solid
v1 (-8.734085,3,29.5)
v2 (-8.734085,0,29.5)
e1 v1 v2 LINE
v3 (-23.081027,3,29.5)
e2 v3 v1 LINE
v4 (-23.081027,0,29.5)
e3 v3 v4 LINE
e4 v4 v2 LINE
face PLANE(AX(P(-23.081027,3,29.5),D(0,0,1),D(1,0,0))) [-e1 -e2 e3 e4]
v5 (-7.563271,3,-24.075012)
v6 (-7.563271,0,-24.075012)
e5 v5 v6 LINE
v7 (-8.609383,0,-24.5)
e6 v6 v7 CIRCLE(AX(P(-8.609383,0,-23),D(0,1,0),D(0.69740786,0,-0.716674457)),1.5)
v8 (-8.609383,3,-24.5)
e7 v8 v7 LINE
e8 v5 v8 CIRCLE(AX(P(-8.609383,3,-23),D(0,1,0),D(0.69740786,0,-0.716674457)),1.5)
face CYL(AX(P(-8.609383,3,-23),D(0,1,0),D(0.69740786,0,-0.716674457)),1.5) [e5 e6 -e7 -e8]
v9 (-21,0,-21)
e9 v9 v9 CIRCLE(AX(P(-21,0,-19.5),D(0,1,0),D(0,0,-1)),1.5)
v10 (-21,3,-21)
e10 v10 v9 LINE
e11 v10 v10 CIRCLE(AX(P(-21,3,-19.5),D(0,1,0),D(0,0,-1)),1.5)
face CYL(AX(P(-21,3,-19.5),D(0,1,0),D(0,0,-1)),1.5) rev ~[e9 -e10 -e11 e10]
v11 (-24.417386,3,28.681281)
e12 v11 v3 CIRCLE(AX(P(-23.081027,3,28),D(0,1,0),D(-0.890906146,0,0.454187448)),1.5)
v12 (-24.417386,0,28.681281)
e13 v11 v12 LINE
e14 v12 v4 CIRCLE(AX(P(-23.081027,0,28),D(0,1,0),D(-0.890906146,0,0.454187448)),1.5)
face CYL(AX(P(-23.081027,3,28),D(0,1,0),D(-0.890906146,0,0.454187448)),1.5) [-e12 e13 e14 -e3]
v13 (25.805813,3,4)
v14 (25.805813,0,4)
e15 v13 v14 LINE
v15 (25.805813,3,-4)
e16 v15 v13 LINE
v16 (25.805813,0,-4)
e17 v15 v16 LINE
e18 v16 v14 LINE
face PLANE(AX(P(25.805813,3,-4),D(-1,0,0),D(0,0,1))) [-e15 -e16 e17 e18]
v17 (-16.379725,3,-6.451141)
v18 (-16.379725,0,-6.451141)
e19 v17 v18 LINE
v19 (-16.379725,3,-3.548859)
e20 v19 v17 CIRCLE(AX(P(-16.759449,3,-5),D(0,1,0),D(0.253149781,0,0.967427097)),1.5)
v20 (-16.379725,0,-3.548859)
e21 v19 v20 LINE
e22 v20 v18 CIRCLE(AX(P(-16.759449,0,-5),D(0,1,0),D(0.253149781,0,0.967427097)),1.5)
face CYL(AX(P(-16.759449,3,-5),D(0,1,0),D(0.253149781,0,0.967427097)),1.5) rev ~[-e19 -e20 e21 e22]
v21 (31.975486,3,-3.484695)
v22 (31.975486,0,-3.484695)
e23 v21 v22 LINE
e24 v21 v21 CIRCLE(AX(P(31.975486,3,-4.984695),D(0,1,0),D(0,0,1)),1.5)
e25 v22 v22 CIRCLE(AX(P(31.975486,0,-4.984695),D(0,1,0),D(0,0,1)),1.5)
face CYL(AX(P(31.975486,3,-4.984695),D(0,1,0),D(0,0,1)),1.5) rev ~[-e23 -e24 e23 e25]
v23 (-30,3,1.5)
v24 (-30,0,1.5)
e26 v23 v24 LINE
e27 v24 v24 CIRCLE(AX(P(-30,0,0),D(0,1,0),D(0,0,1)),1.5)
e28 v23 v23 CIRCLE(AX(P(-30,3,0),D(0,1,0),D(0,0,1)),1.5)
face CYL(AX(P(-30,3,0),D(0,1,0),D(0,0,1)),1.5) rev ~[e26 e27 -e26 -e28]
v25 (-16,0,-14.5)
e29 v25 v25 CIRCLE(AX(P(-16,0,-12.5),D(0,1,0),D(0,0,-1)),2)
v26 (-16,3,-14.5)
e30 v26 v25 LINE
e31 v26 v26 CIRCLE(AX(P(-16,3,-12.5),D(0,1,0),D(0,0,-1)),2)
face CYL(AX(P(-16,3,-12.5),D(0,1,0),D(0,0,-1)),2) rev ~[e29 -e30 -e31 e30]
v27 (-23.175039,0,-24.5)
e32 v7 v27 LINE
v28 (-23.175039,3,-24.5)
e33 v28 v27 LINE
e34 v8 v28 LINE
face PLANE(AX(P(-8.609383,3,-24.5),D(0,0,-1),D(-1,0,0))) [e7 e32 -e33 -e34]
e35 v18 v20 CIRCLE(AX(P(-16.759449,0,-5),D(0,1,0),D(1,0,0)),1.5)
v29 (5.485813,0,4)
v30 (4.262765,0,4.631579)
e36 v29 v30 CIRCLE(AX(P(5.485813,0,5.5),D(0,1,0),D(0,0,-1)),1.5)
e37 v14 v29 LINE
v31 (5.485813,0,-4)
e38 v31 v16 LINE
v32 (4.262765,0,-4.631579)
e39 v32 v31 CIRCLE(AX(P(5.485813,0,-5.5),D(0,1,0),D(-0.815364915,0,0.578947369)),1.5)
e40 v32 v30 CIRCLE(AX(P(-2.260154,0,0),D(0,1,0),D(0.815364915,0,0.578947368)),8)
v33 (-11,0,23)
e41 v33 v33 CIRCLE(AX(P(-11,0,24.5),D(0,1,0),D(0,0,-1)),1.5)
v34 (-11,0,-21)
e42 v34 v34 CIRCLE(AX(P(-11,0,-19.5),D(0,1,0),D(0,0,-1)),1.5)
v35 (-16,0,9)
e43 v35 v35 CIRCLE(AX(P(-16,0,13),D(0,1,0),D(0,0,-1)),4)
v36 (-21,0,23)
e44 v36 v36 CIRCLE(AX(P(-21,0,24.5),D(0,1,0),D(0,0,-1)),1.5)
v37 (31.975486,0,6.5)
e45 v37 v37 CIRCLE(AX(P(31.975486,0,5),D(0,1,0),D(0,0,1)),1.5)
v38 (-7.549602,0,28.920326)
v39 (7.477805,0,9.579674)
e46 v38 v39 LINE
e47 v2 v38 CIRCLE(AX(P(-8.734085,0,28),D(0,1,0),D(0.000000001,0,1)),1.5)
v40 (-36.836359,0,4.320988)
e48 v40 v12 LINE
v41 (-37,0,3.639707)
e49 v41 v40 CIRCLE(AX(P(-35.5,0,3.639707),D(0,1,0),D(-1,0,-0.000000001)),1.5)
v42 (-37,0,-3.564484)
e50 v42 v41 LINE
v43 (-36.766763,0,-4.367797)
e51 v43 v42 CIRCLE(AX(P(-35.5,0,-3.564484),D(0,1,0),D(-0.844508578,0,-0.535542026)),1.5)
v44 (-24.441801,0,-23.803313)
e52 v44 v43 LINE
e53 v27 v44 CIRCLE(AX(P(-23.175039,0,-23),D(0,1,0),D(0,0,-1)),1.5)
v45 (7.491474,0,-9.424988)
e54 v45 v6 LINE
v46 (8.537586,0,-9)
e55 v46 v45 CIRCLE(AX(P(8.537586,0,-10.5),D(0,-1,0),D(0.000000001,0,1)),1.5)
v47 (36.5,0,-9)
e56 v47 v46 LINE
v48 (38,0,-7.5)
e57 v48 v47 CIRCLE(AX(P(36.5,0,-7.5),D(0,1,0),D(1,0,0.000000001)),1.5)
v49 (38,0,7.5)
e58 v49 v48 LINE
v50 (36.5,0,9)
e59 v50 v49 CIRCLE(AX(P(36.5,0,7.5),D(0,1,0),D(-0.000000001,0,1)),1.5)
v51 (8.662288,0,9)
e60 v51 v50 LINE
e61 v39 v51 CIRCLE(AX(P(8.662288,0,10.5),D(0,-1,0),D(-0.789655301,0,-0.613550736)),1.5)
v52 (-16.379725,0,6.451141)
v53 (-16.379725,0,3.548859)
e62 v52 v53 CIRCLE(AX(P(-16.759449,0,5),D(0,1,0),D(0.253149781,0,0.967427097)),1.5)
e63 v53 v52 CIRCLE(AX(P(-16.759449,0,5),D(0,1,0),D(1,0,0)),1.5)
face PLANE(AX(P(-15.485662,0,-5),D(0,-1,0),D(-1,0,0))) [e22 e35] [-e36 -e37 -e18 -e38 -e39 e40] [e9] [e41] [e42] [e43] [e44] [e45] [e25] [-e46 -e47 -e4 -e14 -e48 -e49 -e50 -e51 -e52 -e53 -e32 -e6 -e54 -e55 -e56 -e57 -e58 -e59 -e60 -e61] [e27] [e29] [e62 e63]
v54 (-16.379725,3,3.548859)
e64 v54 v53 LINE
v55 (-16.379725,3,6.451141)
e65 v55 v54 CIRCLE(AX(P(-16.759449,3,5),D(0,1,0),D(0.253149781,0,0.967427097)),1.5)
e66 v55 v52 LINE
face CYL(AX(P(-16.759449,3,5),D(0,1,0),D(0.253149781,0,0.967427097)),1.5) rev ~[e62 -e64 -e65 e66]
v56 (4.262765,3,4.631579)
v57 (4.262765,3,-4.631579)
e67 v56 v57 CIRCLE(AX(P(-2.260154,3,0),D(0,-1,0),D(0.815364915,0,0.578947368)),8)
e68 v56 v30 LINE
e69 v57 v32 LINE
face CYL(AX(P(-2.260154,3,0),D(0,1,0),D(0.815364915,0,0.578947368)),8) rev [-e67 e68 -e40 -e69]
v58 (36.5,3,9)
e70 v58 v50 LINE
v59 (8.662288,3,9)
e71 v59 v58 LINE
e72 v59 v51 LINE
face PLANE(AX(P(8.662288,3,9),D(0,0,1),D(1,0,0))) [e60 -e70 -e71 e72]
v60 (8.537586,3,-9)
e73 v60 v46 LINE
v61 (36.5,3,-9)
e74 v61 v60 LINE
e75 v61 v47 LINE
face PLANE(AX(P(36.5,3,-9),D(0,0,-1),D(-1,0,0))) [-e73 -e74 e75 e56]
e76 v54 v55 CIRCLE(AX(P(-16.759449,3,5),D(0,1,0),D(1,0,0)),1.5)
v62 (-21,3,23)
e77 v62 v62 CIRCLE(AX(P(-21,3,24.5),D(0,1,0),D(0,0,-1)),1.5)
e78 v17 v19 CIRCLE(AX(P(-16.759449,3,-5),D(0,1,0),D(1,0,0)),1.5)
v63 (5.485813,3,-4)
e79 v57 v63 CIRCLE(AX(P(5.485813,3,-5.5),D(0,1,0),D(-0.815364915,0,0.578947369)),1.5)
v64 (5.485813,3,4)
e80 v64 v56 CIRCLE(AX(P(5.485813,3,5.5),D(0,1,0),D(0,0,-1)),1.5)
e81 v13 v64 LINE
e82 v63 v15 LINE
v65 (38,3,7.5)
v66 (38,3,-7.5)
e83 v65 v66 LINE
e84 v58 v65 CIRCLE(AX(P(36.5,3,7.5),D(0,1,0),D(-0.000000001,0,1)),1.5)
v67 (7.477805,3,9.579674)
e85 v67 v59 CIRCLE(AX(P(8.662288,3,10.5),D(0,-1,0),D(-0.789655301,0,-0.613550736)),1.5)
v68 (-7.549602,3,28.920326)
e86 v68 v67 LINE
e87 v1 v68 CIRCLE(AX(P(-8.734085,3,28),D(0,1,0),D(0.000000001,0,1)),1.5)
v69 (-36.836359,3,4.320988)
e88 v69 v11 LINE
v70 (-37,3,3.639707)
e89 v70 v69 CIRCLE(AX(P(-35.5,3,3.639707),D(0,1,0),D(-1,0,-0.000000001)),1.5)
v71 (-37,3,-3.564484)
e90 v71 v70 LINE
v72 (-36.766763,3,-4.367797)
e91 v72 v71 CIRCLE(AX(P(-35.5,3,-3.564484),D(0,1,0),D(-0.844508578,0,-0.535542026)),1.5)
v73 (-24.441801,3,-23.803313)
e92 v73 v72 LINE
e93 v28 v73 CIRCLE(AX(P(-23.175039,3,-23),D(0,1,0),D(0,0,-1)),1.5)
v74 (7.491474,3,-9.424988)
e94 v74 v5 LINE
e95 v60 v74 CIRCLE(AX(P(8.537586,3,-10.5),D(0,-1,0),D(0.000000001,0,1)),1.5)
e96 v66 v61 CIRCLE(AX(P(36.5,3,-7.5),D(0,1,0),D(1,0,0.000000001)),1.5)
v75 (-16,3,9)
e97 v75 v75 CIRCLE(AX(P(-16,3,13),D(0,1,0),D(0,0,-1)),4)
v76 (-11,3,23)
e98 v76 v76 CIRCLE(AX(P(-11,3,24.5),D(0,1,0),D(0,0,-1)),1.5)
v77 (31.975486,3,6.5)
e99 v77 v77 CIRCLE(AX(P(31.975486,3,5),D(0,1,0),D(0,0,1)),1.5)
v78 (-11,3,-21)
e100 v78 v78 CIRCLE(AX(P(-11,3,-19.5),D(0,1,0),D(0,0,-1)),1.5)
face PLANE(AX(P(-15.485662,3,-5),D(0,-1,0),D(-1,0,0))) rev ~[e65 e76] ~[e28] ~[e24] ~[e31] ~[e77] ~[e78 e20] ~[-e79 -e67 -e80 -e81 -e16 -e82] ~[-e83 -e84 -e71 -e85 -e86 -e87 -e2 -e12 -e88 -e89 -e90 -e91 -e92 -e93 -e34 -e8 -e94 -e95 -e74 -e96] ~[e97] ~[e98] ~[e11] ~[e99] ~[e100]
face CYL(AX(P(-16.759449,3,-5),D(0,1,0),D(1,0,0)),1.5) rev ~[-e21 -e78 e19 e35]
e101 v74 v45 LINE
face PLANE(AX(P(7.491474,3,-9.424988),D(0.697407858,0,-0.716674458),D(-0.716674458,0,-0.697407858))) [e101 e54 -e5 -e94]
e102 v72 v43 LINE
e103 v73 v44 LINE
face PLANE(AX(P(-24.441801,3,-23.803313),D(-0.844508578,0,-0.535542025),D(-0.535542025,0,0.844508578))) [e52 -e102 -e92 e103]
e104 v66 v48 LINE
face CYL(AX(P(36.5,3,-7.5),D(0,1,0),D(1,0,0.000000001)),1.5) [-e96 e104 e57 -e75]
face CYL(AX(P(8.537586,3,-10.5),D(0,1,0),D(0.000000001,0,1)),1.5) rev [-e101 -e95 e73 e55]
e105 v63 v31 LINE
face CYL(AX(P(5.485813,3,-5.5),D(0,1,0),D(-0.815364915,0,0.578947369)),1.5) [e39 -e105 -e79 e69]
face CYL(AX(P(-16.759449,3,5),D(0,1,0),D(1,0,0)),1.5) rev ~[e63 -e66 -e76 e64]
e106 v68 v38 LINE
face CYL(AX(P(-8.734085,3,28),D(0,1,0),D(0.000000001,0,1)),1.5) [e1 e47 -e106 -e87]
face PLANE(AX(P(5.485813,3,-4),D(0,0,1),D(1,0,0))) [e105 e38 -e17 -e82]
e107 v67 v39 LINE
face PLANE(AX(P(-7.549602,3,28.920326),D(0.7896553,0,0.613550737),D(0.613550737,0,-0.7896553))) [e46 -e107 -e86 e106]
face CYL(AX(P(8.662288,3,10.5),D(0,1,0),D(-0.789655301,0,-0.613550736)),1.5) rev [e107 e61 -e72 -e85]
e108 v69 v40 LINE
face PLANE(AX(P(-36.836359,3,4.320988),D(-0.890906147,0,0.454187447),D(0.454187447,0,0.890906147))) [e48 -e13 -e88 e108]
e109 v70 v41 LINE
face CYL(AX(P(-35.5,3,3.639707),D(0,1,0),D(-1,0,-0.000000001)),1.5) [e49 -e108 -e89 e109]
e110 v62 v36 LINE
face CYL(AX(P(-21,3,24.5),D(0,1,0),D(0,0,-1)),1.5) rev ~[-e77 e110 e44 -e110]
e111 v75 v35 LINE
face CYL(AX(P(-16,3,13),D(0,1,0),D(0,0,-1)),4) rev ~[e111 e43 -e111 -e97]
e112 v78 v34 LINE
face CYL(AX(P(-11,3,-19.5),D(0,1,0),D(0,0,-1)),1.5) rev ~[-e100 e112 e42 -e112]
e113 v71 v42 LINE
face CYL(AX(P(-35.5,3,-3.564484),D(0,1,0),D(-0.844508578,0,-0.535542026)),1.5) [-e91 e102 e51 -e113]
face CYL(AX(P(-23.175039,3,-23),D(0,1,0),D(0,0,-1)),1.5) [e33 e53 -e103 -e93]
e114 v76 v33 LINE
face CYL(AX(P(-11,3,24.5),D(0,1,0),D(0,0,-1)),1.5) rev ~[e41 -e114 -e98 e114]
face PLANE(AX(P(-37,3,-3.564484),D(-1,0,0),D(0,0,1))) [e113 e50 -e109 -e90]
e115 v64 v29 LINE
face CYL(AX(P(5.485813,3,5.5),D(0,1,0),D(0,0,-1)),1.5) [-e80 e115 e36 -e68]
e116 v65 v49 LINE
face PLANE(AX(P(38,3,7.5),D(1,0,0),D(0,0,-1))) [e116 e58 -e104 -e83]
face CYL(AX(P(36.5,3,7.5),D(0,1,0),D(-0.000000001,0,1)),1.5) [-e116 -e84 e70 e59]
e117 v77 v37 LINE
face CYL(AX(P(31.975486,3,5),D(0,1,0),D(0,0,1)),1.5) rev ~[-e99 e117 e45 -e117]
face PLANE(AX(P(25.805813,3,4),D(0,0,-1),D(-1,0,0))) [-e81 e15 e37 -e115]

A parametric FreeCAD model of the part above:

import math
import FreeCAD as App
import Part
import Sketcher

V = App.Vector

doc = App.newDocument("Part")
body = doc.addObject("PartDesign::Body", "Body")

# Sketch on XZ plane
sketch1 = body.newObject("Sketcher::SketchObject", "Sketch")
sketch1.AttachmentSupport = (doc.getObject("XZ_Plane"), [""])
sketch1.MapMode = "FlatFace"
sketch1.AttachmentOffset = App.Placement(V(0, 0, -3), App.Rotation())
sketch1.addGeometry([
    Part.LineSegment(V(-24.441801, -23.803313, 0), V(-36.766763, -4.367797, 0)),  # 0
    Part.ArcOfCircle(Part.Circle(V(-35.5, -3.564484, 0), V(0, 0, 1), 1.5), math.radians(180), math.radians(212.380678)),  # 1
    Part.LineSegment(V(-37, -3.564484, 0), V(-37, 3.639707, 0)),  # 2
    Part.ArcOfCircle(Part.Circle(V(-35.5, 3.639707, 0), V(0, 0, 1), 1.5), math.radians(152.987335), math.radians(180)),  # 3
    Part.LineSegment(V(-36.836359, 4.320988, 0), V(-24.417386, 28.681281, 0)),  # 4
    Part.ArcOfCircle(Part.Circle(V(-23.081027, 28, 0), V(0, 0, 1), 1.5), math.radians(90), math.radians(152.987335)),  # 5
    Part.LineSegment(V(-23.081027, 29.5, 0), V(-8.734085, 29.5, 0)),  # 6
    Part.ArcOfCircle(Part.Circle(V(-8.734085, 28, 0), V(0, 0, 1), 1.5), math.radians(37.84669), math.radians(90)),  # 7
    Part.LineSegment(V(-7.549602, 28.920326, 0), V(7.477805, 9.579674, 0)),  # 8
    Part.ArcOfCircle(Part.Circle(V(8.662288, 10.5, 0), V(0, 0, 1), 1.5), math.radians(-142.15331), math.radians(-90)),  # 9
    Part.LineSegment(V(8.662288, 9, 0), V(36.5, 9, 0)),  # 10
    Part.ArcOfCircle(Part.Circle(V(36.5, 7.5, 0), V(0, 0, 1), 1.5), math.radians(0), math.radians(90)),  # 11
    Part.LineSegment(V(38, 7.5, 0), V(38, -7.5, 0)),  # 12
    Part.ArcOfCircle(Part.Circle(V(36.5, -7.5, 0), V(0, 0, 1), 1.5), math.radians(-90), math.radians(0)),  # 13
    Part.LineSegment(V(36.5, -9, 0), V(8.537586, -9, 0)),  # 14
    Part.ArcOfCircle(Part.Circle(V(8.537586, -10.5, 0), V(0, 0, 1), 1.5), math.radians(90), math.radians(134.219404)),  # 15
    Part.LineSegment(V(7.491474, -9.424988, 0), V(-7.563271, -24.075012, 0)),  # 16
    Part.ArcOfCircle(Part.Circle(V(-8.609383, -23, 0), V(0, 0, 1), 1.5), math.radians(-90), math.radians(-45.780596)),  # 17
    Part.LineSegment(V(-8.609383, -24.5, 0), V(-23.175039, -24.5, 0)),  # 18
    Part.ArcOfCircle(Part.Circle(V(-23.175039, -23, 0), V(0, 0, 1), 1.5), math.radians(-147.619322), math.radians(-90)),  # 19
    Part.Circle(V(-21, 24.5, 0), V(0, 0, 1), 1.5),  # 20
    Part.Circle(V(-11, 24.5, 0), V(0, 0, 1), 1.5),  # 21
    Part.Circle(V(-16, 13, 0), V(0, 0, 1), 4),  # 22
    Part.Circle(V(-16, 5, 0), V(0, 0, 1), 1.5),  # 23
    Part.Circle(V(33, 5, 0), V(0, 0, 1), 1.5),  # 24
    Part.Circle(V(-32, 0, 0), V(0, 0, 1), 1.5),  # 25
    Part.ArcOfCircle(Part.Circle(V(-24.25, 5, 0), V(0, 0, 1), 2.5), math.radians(90), math.radians(180)),  # 26
    Part.LineSegment(V(-26.75, 5, 0), V(-26.75, -5, 0)),  # 27
    Part.ArcOfCircle(Part.Circle(V(-24.25, -5, 0), V(0, 0, 1), 2.5), math.radians(180), math.radians(270)),  # 28
    Part.LineSegment(V(-24.25, -7.5, 0), V(-21.75, -7.5, 0)),  # 29
    Part.ArcOfCircle(Part.Circle(V(-21.75, -5, 0), V(0, 0, 1), 2.5), math.radians(-90), math.radians(0)),  # 30
    Part.LineSegment(V(-19.25, -5, 0), V(-19.25, 5, 0)),  # 31
    Part.ArcOfCircle(Part.Circle(V(-21.75, 5, 0), V(0, 0, 1), 2.5), math.radians(0), math.radians(90)),  # 32
    Part.LineSegment(V(-21.75, 7.5, 0), V(-24.25, 7.5, 0)),  # 33
    Part.Circle(V(-16, -5, 0), V(0, 0, 1), 1.5),  # 34
    Part.Circle(V(-21, -19.5, 0), V(0, 0, 1), 1.5),  # 35
    Part.Circle(V(-16, -12.5, 0), V(0, 0, 1), 2),  # 36
    Part.Circle(V(-11, -19.5, 0), V(0, 0, 1), 1.5),  # 37
    Part.ArcOfCircle(Part.Circle(V(25.75, -2.5, 0), V(0, 0, 1), 1.5), math.radians(-90), math.radians(0)),  # 38
    Part.LineSegment(V(27.25, -2.5, 0), V(27.25, 2.5, 0)),  # 39
    Part.ArcOfCircle(Part.Circle(V(25.75, 2.5, 0), V(0, 0, 1), 1.5), math.radians(0), math.radians(90)),  # 40
    Part.LineSegment(V(25.75, 4, 0), V(7.745967, 4, 0)),  # 41
    Part.ArcOfCircle(Part.Circle(V(7.745967, 5.5, 0), V(0, 0, 1), 1.5), math.radians(-144.62346), math.radians(-90)),  # 42
    Part.ArcOfCircle(Part.Circle(V(0, 0, 0), V(0, 0, 1), 8), math.radians(35.37654), math.radians(324.62346)),  # 43
    Part.ArcOfCircle(Part.Circle(V(7.745967, -5.5, 0), V(0, 0, 1), 1.5), math.radians(90), math.radians(144.62346)),  # 44
    Part.LineSegment(V(7.745967, -4, 0), V(25.75, -4, 0)),  # 45
    Part.Circle(V(33, -5, 0), V(0, 0, 1), 1.5),  # 46
], False)
sketch1.addConstraint([
    Sketcher.Constraint("Coincident", 0, 2, 1, 2),
    Sketcher.Constraint("Coincident", 1, 1, 2, 1),
    Sketcher.Constraint("Coincident", 2, 2, 3, 2),
    Sketcher.Constraint("Coincident", 3, 1, 4, 1),
    Sketcher.Constraint("Coincident", 4, 2, 5, 2),
    Sketcher.Constraint("Coincident", 5, 1, 6, 1),
    Sketcher.Constraint("Coincident", 6, 2, 7, 2),
    Sketcher.Constraint("Coincident", 7, 1, 8, 1),
    Sketcher.Constraint("Coincident", 8, 2, 9, 1),
    Sketcher.Constraint("Coincident", 9, 2, 10, 1),
    Sketcher.Constraint("Coincident", 10, 2, 11, 2),
    Sketcher.Constraint("Coincident", 11, 1, 12, 1),
    Sketcher.Constraint("Coincident", 12, 2, 13, 2),
    Sketcher.Constraint("Coincident", 13, 1, 14, 1),
    Sketcher.Constraint("Coincident", 14, 2, 15, 1),
    Sketcher.Constraint("Coincident", 15, 2, 16, 1),
    Sketcher.Constraint("Coincident", 16, 2, 17, 2),
    Sketcher.Constraint("Coincident", 17, 1, 18, 1),
    Sketcher.Constraint("Coincident", 18, 2, 19, 2),
    Sketcher.Constraint("Coincident", 19, 1, 0, 1),
    Sketcher.Constraint("Coincident", 26, 2, 27, 1),
    Sketcher.Constraint("Coincident", 27, 2, 28, 1),
    Sketcher.Constraint("Coincident", 28, 2, 29, 1),
    Sketcher.Constraint("Coincident", 29, 2, 30, 1),
    Sketcher.Constraint("Coincident", 30, 2, 31, 1),
    Sketcher.Constraint("Coincident", 31, 2, 32, 1),
    Sketcher.Constraint("Coincident", 32, 2, 33, 1),
    Sketcher.Constraint("Coincident", 33, 2, 26, 1),
    Sketcher.Constraint("Coincident", 38, 2, 39, 1),
    Sketcher.Constraint("Coincident", 39, 2, 40, 1),
    Sketcher.Constraint("Coincident", 40, 2, 41, 1),
    Sketcher.Constraint("Coincident", 41, 2, 42, 2),
    Sketcher.Constraint("Coincident", 42, 1, 43, 1),
    Sketcher.Constraint("Coincident", 43, 2, 44, 2),
    Sketcher.Constraint("Coincident", 44, 1, 45, 1),
    Sketcher.Constraint("Coincident", 45, 2, 38, 1),
    Sketcher.Constraint("Vertical", 2),
    Sketcher.Constraint("Horizontal", 6),
    Sketcher.Constraint("Horizontal", 10),
    Sketcher.Constraint("Vertical", 12),
    Sketcher.Constraint("Horizontal", 14),
    Sketcher.Constraint("Horizontal", 18),
    Sketcher.Constraint("Vertical", 27),
    Sketcher.Constraint("Horizontal", 29),
    Sketcher.Constraint("Vertical", 31),
    Sketcher.Constraint("Horizontal", 33),
    Sketcher.Constraint("Vertical", 39),
    Sketcher.Constraint("Horizontal", 41),
    Sketcher.Constraint("Horizontal", 45),
    Sketcher.Constraint("Coincident", 43, 3, -1, 1),
    Sketcher.Constraint("PointOnObject", 25, 3, -1),
    Sketcher.Constraint("Diameter", 20, 3.0),
    Sketcher.Constraint("Diameter", 21, 3.0),
    Sketcher.Constraint("Diameter", 22, 8.0),
    Sketcher.Constraint("Diameter", 23, 3.0),
    Sketcher.Constraint("Diameter", 24, 3.0),
    Sketcher.Constraint("Diameter", 25, 3.0),
    Sketcher.Constraint("Diameter", 34, 3.0),
    Sketcher.Constraint("Diameter", 35, 3.0),
    Sketcher.Constraint("Diameter", 36, 4.0),
    Sketcher.Constraint("Diameter", 37, 3.0),
    Sketcher.Constraint("Diameter", 46, 3.0),
    Sketcher.Constraint("Radius", 43, 8.0),
    Sketcher.Constraint("Radius", 1, 1.5),
    Sketcher.Constraint("Radius", 3, 1.5),
    Sketcher.Constraint("Radius", 5, 1.5),
    Sketcher.Constraint("Radius", 7, 1.5),
    Sketcher.Constraint("Radius", 9, 1.5),
    Sketcher.Constraint("Radius", 11, 1.5),
    Sketcher.Constraint("Radius", 13, 1.5),
    Sketcher.Constraint("Radius", 15, 1.5),
    Sketcher.Constraint("Radius", 17, 1.5),
    Sketcher.Constraint("Radius", 19, 1.5),
    Sketcher.Constraint("Radius", 26, 2.5),
    Sketcher.Constraint("Radius", 28, 2.5),
    Sketcher.Constraint("Radius", 30, 2.5),
    Sketcher.Constraint("Radius", 32, 2.5),
    Sketcher.Constraint("Radius", 38, 1.5),
    Sketcher.Constraint("Radius", 40, 1.5),
    Sketcher.Constraint("Radius", 42, 1.5),
    Sketcher.Constraint("Radius", 44, 1.5),
    Sketcher.Constraint("DistanceY", 12, 2, 12, 1, 15.0),
    Sketcher.Constraint("DistanceY", 27, 2, 27, 1, 10.0),
    Sketcher.Constraint("DistanceY", 31, 1, 31, 2, 10.0),
    Sketcher.Constraint("DistanceY", 39, 1, 39, 2, 5.0),
    Sketcher.Constraint("DistanceX", 29, 1, 29, 2, 2.5),
    Sketcher.Constraint("DistanceX", 33, 2, 33, 1, 2.5),
    Sketcher.Constraint("DistanceY", -1, 1, 5, 3, 28.0),
    Sketcher.Constraint("DistanceY", 17, 3, -1, 1, 23.0),
    Sketcher.Constraint("DistanceX", 20, 3, -1, 1, 21.0),
    Sketcher.Constraint("DistanceX", 21, 3, -1, 1, 11.0),
    Sketcher.Constraint("DistanceX", 22, 3, -1, 1, 16.0),
    Sketcher.Constraint("DistanceY", -1, 1, 22, 3, 13.0),
    Sketcher.Constraint("DistanceX", 23, 3, -1, 1, 16.0),
    Sketcher.Constraint("DistanceY", -1, 1, 23, 3, 5.0),
    Sketcher.Constraint("DistanceX", -1, 1, 24, 3, 33.0),
    Sketcher.Constraint("DistanceY", -1, 1, 24, 3, 5.0),
    Sketcher.Constraint("DistanceX", 25, 3, -1, 1, 32.0),
    Sketcher.Constraint("DistanceY", -1, 1, 26, 3, 5.0),
    Sketcher.Constraint("DistanceY", 28, 3, -1, 1, 5.0),
    Sketcher.Constraint("DistanceX", 34, 3, -1, 1, 16.0),
    Sketcher.Constraint("DistanceY", 34, 3, -1, 1, 5.0),
    Sketcher.Constraint("DistanceX", 35, 3, -1, 1, 21.0),
    Sketcher.Constraint("DistanceX", 36, 3, -1, 1, 16.0),
    Sketcher.Constraint("DistanceX", 37, 3, -1, 1, 11.0),
    Sketcher.Constraint("DistanceX", -1, 1, 46, 3, 33.0),
    Sketcher.Constraint("DistanceY", 46, 3, -1, 1, 5.0),
    Sketcher.Constraint("DistanceX", 1, 1, -1, 1, 37.0),
    Sketcher.Constraint("DistanceY", -1, 1, 9, 2, 9.0),
    Sketcher.Constraint("DistanceX", -1, 1, 11, 1, 38.0),
    Sketcher.Constraint("DistanceY", 13, 1, -1, 1, 9.0),
    Sketcher.Constraint("DistanceY", -1, 1, 26, 2, 5.0),
    Sketcher.Constraint("DistanceY", 30, 2, -1, 1, 5.0),
    Sketcher.Constraint("DistanceY", -1, 1, 40, 2, 4.0),
    Sketcher.Constraint("DistanceY", 44, 1, -1, 1, 4.0),
    Sketcher.Constraint("DistanceY", -1, 1, 20, 3, 24.5),
    Sketcher.Constraint("DistanceY", -1, 1, 21, 3, 24.5),
    Sketcher.Constraint("DistanceY", 35, 3, -1, 1, 19.5),
    Sketcher.Constraint("DistanceY", 36, 3, -1, 1, 12.5),
    Sketcher.Constraint("DistanceY", 37, 3, -1, 1, 19.5),
    Sketcher.Constraint("DistanceX", -1, 1, 10, 2, 36.5),
    Sketcher.Constraint("DistanceY", -1, 1, 11, 1, 7.5),
    Sketcher.Constraint("DistanceX", -1, 1, 13, 1, 36.5),
    Sketcher.Constraint("DistanceY", 38, 2, -1, 1, 2.5),
    Sketcher.Constraint("DistanceX", 26, 3, -1, 1, 24.25),
    Sketcher.Constraint("DistanceX", 30, 3, -1, 1, 21.75),
    Sketcher.Constraint("DistanceX", -1, 1, 38, 3, 25.75),
    Sketcher.Constraint("DistanceX", 28, 2, -1, 1, 24.25),
    Sketcher.Constraint("DistanceX", 32, 2, -1, 1, 21.75),
    Sketcher.Constraint("DistanceX", -1, 1, 40, 2, 25.75),
    Sketcher.Constraint("DistanceX", -1, 1, 45, 2, 25.75),
    Sketcher.Constraint("DistanceY", 2, 1, 2, 2, 7.20419),
    Sketcher.Constraint("DistanceX", 7, 1, -1, 1, 7.549602),
    Sketcher.Constraint("DistanceX", 19, 1, -1, 1, 24.441801),
    Sketcher.Constraint("DistanceX", 6, 1, 6, 2, 14.346942),
    Sketcher.Constraint("DistanceX", 10, 1, 10, 2, 27.837712),
    Sketcher.Constraint("DistanceX", 14, 2, 14, 1, 27.962414),
    Sketcher.Constraint("DistanceX", 18, 2, 18, 1, 14.565656),
    Sketcher.Constraint("DistanceX", 41, 2, 41, 1, 18.004033),
    Sketcher.Constraint("DistanceX", 45, 1, 45, 2, 18.004033),
    Sketcher.Constraint("DistanceX", 19, 3, -1, 1, 23.175039),
    Sketcher.Constraint("DistanceX", 3, 1, -1, 1, 36.836359),
    Sketcher.Constraint("DistanceY", -1, 1, 4, 2, 28.681281),
    Sketcher.Constraint("DistanceY", 15, 2, -1, 1, 9.424988),
    Sketcher.Constraint("DistanceX", 16, 2, -1, 1, 7.563271),
    Sketcher.Constraint("DistanceY", 16, 2, -1, 1, 24.075012),
    Sketcher.Constraint("DistanceX", 18, 2, -1, 1, 23.175039),
    Sketcher.Constraint("DistanceX", -1, 1, 42, 1, 6.522919),
    Sketcher.Constraint("DistanceX", -1, 1, 43, 2, 6.522919),
    Sketcher.Constraint("Distance", 0, 23.013995),
    Sketcher.Constraint("Distance", 4, 27.343277),
    Sketcher.Constraint("Distance", 8, 24.492525),
    Sketcher.Constraint("Distance", 16, 21.006393),
    Sketcher.Constraint("DistanceY", 1, 3, -1, 1, 3.564484),
    Sketcher.Constraint("DistanceY", -1, 1, 3, 3, 3.639707),
    Sketcher.Constraint("DistanceX", 7, 3, -1, 1, 8.734085),
    Sketcher.Constraint("DistanceX", -1, 1, 9, 3, 8.662288),
    Sketcher.Constraint("DistanceY", 1, 1, -1, 1, 3.564484),
    Sketcher.Constraint("DistanceX", 5, 1, -1, 1, 23.081027),
])
pad1 = body.newObject("PartDesign::Pad", "Pad")
pad1.Profile = sketch1
pad1.Length = 3

# Sketch on XZ plane
sketch2 = body.newObject("Sketcher::SketchObject", "Sketch001")
sketch2.AttachmentSupport = (doc.getObject("XZ_Plane"), [""])
sketch2.MapMode = "FlatFace"
sketch2.AttachmentOffset = App.Placement(V(0, 0, -3), App.Rotation())
sketch2.addGeometry([
    Part.Circle(V(-32, 0, 0), V(0, 0, 1), 2.6),  # 0
    Part.LineSegment(V(-8.4, -5.3, 0), V(-10.3, -5.3, 0)),  # 1
    Part.LineSegment(V(-10.3, -5.3, 0), V(-10.3, 6.2, 0)),  # 2
    Part.LineSegment(V(-10.3, 6.2, 0), V(-7.8, 6.2, 0)),  # 3
    Part.ArcOfCircle(Part.Circle(V(0, 0, 0), V(0, 0, 1), 10), math.radians(38), math.radians(142)),  # 4
    Part.LineSegment(V(7.8, 6.2, 0), V(29.4, 6.2, 0)),  # 5
    Part.LineSegment(V(29.4, 6.2, 0), V(29.4, -5.3, 0)),  # 6
    Part.LineSegment(V(29.4, -5.3, 0), V(8.4, -5.3, 0)),  # 7
    Part.ArcOfCircle(Part.Circle(V(0, 0, 0), V(0, 0, 1), 10), math.radians(-148), math.radians(-32)),  # 8
    Part.LineSegment(V(-27.5, -8.8, 0), V(-27.5, 8.9, 0)),  # 9
    Part.LineSegment(V(-27.5, 8.9, 0), V(-18.1, 8.9, 0)),  # 10
    Part.LineSegment(V(-18.1, 8.9, 0), V(-18.1, -8.8, 0)),  # 11
    Part.LineSegment(V(-18.1, -8.8, 0), V(-27.5, -8.8, 0)),  # 12
], False)
sketch2.addConstraint([
    Sketcher.Constraint("Coincident", 1, 2, 2, 1),
    Sketcher.Constraint("Coincident", 2, 2, 3, 1),
    Sketcher.Constraint("Coincident", 3, 2, 4, 2),
    Sketcher.Constraint("Coincident", 4, 1, 5, 1),
    Sketcher.Constraint("Coincident", 5, 2, 6, 1),
    Sketcher.Constraint("Coincident", 6, 2, 7, 1),
    Sketcher.Constraint("Coincident", 7, 2, 8, 2),
    Sketcher.Constraint("Coincident", 8, 1, 1, 1),
    Sketcher.Constraint("Coincident", 9, 2, 10, 1),
    Sketcher.Constraint("Coincident", 10, 2, 11, 1),
    Sketcher.Constraint("Coincident", 11, 2, 12, 1),
    Sketcher.Constraint("Coincident", 12, 2, 9, 1),
    Sketcher.Constraint("Horizontal", 1),
    Sketcher.Constraint("Vertical", 2),
    Sketcher.Constraint("Horizontal", 3),
    Sketcher.Constraint("Horizontal", 5),
    Sketcher.Constraint("Vertical", 6),
    Sketcher.Constraint("Horizontal", 7),
    Sketcher.Constraint("Vertical", 9),
    Sketcher.Constraint("Horizontal", 10),
    Sketcher.Constraint("Vertical", 11),
    Sketcher.Constraint("Horizontal", 12),
    Sketcher.Constraint("Coincident", 4, 3, -1, 1),
    Sketcher.Constraint("Coincident", 8, 3, -1, 1),
    Sketcher.Constraint("Equal", 4, 8),
    Sketcher.Constraint("PointOnObject", 0, 3, -1),
    Sketcher.Constraint("Horizontal", 3, 2, 4, 1),
    Sketcher.Constraint("Horizontal", 1, 2, 6, 2),
    Sketcher.Constraint("DistanceX", 0, 3, -1, 1, 32.0),
    Sketcher.Constraint("Diameter", 0, 5.126309),
    Sketcher.Constraint("Radius", 4, 9.962171),
    Sketcher.Constraint("DistanceX", 10, 1, 10, 2, 9.4376),
    Sketcher.Constraint("DistanceX", 1, 2, 1, 1, 1.85471),
    Sketcher.Constraint("DistanceX", 3, 1, 3, 2, 2.476589),
    Sketcher.Constraint("DistanceX", 5, 1, 5, 2, 21.550671),
    Sketcher.Constraint("DistanceY", 9, 1, 9, 2, 17.699952),
    Sketcher.Constraint("DistanceY", 2, 1, 2, 2, 11.498926),
    Sketcher.Constraint("DistanceX", 9, 2, -1, 1, 27.52316),
    Sketcher.Constraint("DistanceY", 2, 2, 9, 2, 2.703409),
])
pad2 = body.newObject("PartDesign::Pad", "Pad001")
pad2.Profile = sketch2
pad2.Length = 3

# Sketch on XZ plane
sketch3 = body.newObject("Sketcher::SketchObject", "Sketch002")
sketch3.AttachmentSupport = (doc.getObject("XZ_Plane"), [""])
sketch3.MapMode = "FlatFace"
sketch3.AttachmentOffset = App.Placement(V(0, 0, -3), App.Rotation())
sketch3.addGeometry([
    Part.Circle(V(-30, 0, 0), V(0, 0, 1), 1.5),  # 0
    Part.LineSegment(V(25.8, -4, 0), V(5.5, -4, 0)),  # 1
    Part.ArcOfCircle(Part.Circle(V(5.5, -5.5, 0), V(0, 0, 1), 1.5), math.radians(90), math.radians(145)),  # 2
    Part.ArcOfCircle(Part.Circle(V(-2.3, 0, 0), V(0, 0, 1), 8), math.radians(35), math.radians(325)),  # 3
    Part.ArcOfCircle(Part.Circle(V(5.5, 5.5, 0), V(0, 0, 1), 1.5), math.radians(-145), math.radians(-90)),  # 4
    Part.LineSegment(V(5.5, 4, 0), V(25.8, 4, 0)),  # 5
    Part.LineSegment(V(25.8, 4, 0), V(25.8, -4, 0)),  # 6
], False)
sketch3.addConstraint([
    Sketcher.Constraint("Tangent", 1, 2, 2, 1),
    Sketcher.Constraint("Tangent", 2, 2, 3, 2),
    Sketcher.Constraint("Tangent", 3, 1, 4, 1),
    Sketcher.Constraint("Tangent", 4, 2, 5, 1),
    Sketcher.Constraint("Coincident", 5, 2, 6, 1),
    Sketcher.Constraint("Coincident", 6, 2, 1, 1),
    Sketcher.Constraint("Horizontal", 1),
    Sketcher.Constraint("Horizontal", 5),
    Sketcher.Constraint("Vertical", 6),
    Sketcher.Constraint("Equal", 0, 2),
    Sketcher.Constraint("Equal", 2, 4),
    Sketcher.Constraint("Symmetric", 2, 3, 4, 3, -1),
    Sketcher.Constraint("PointOnObject", 0, 3, -1),
    Sketcher.Constraint("Diameter", 0, 3.0),
    Sketcher.Constraint("Radius", 3, 8.0),
    Sketcher.Constraint("DistanceY", 6, 2, 6, 1, 8.0),
    Sketcher.Constraint("DistanceX", 0, 3, -1, 1, 30.0),
    Sketcher.Constraint("DistanceX", 1, 2, 1, 1, 20.32),
    Sketcher.Constraint("DistanceX", -1, 1, 2, 3, 5.485813),
])
pocket1 = body.newObject("PartDesign::Pocket", "Pocket")
pocket1.Profile = sketch3
pocket1.Length = 10
pocket1.Reversed = True

# Sketch on XZ plane
sketch4 = body.newObject("Sketcher::SketchObject", "Sketch003")
sketch4.AttachmentSupport = (doc.getObject("XZ_Plane"), [""])
sketch4.MapMode = "FlatFace"
sketch4.AttachmentOffset = App.Placement(V(0, 0, -3), App.Rotation())
sketch4.addGeometry([
    Part.Circle(V(33, -5, 0), V(0, 0, 1), 1.5),
    Part.Circle(V(33, 5, 0), V(0, 0, 1), 1.5),
], False)
sketch4.addConstraint([
    Sketcher.Constraint("Equal", 0, 1),
    Sketcher.Constraint("Symmetric", 0, 3, 1, 3, -1),
    Sketcher.Constraint("Diameter", 0, 3.0),
    Sketcher.Constraint("DistanceX", -1, 1, 0, 3, 33.0),
    Sketcher.Constraint("DistanceY", 0, 3, -1, 1, 5.0),
])
pad3 = body.newObject("PartDesign::Pad", "Pad002")
pad3.Profile = sketch4
pad3.Length = 3

# Sketch on XZ plane
sketch5 = body.newObject("Sketcher::SketchObject", "Sketch004")
sketch5.AttachmentSupport = (doc.getObject("XZ_Plane"), [""])
sketch5.MapMode = "FlatFace"
sketch5.AttachmentOffset = App.Placement(V(0, 0, -3), App.Rotation())
sketch5.addGeometry([
    Part.Circle(V(32, -5, 0), V(0, 0, 1), 1.5),
    Part.Circle(V(32, 5, 0), V(0, 0, 1), 1.5),
], False)
sketch5.addConstraint([
    Sketcher.Constraint("Equal", 0, 1),
    Sketcher.Constraint("Vertical", 0, 3, 1, 3),
    Sketcher.Constraint("Diameter", 0, 3.0),
    Sketcher.Constraint("DistanceY", -1, 1, 1, 3, 5.0),
    Sketcher.Constraint("DistanceX", -1, 1, 0, 3, 31.975486),
    Sketcher.Constraint("DistanceY", 0, 3, -1, 1, 4.984695),
])
pocket2 = body.newObject("PartDesign::Pocket", "Pocket001")
pocket2.Profile = sketch5
pocket2.Length = 3
pocket2.Reversed = True

# Sketch on XZ plane
sketch6 = body.newObject("Sketcher::SketchObject", "Sketch005")
sketch6.AttachmentSupport = (doc.getObject("XZ_Plane"), [""])
sketch6.MapMode = "FlatFace"
sketch6.AttachmentOffset = App.Placement(V(0, 0, -3), App.Rotation())
sketch6.addGeometry([
    Part.ArcOfCircle(Part.Circle(V(-16, -5, 0), V(0, 0, 1), 1.5), math.radians(-105), math.radians(105)),
    Part.ArcOfCircle(Part.Circle(V(-16.8, -5, 0), V(0, 0, 1), 1.5), math.radians(75), math.radians(285)),
    Part.ArcOfCircle(Part.Circle(V(-16, 5, 0), V(0, 0, 1), 1.5), math.radians(-105), math.radians(105)),
    Part.ArcOfCircle(Part.Circle(V(-16.8, 5, 0), V(0, 0, 1), 1.5), math.radians(75), math.radians(285)),
], False)
sketch6.addConstraint([
    Sketcher.Constraint("Coincident", 0, 1, 1, 2),
    Sketcher.Constraint("Coincident", 1, 1, 0, 2),
    Sketcher.Constraint("Coincident", 2, 1, 3, 2),
    Sketcher.Constraint("Coincident", 3, 1, 2, 2),
    Sketcher.Constraint("Equal", 0, 1),
    Sketcher.Constraint("Equal", 1, 2),
    Sketcher.Constraint("Equal", 2, 3),
    Sketcher.Constraint("Symmetric", 0, 3, 2, 3, -1),
    Sketcher.Constraint("Symmetric", 1, 3, 3, 3, -1),
    Sketcher.Constraint("Horizontal", 0, 3, 1, 3),
    Sketcher.Constraint("Radius", 0, 1.5),
    Sketcher.Constraint("DistanceX", 0, 3, -1, 1, 16.0),
    Sketcher.Constraint("DistanceY", 0, 3, -1, 1, 5.0),
    Sketcher.Constraint("DistanceX", 1, 3, -1, 1, 16.759449),
])
pocket3 = body.newObject("PartDesign::Pocket", "Pocket002")
pocket3.Profile = sketch6
pocket3.Length = 3
pocket3.Reversed = True

# Sketch on XZ plane
sketch7 = body.newObject("Sketcher::SketchObject", "Sketch006")
sketch7.AttachmentSupport = (doc.getObject("XZ_Plane"), [""])
sketch7.MapMode = "FlatFace"
sketch7.AttachmentOffset = App.Placement(V(0, 0, -3), App.Rotation())
sketch7.addGeometry([
    Part.ArcOfCircle(Part.Circle(V(-16.8, -5, 0), V(0, 0, 1), 1.5), math.radians(-75), math.radians(75)),
    Part.ArcOfCircle(Part.Circle(V(-16, -5, 0), V(0, 0, 1), 1.5), math.radians(-105), math.radians(105)),
    Part.ArcOfCircle(Part.Circle(V(-16.8, 5, 0), V(0, 0, 1), 1.5), math.radians(-75), math.radians(75)),
    Part.ArcOfCircle(Part.Circle(V(-16, 5, 0), V(0, 0, 1), 1.5), math.radians(-105), math.radians(105)),
], False)
sketch7.addConstraint([
    Sketcher.Constraint("Coincident", 0, 1, 1, 1),
    Sketcher.Constraint("Coincident", 1, 2, 0, 2),
    Sketcher.Constraint("Coincident", 2, 1, 3, 1),
    Sketcher.Constraint("Coincident", 3, 2, 2, 2),
    Sketcher.Constraint("Equal", 0, 1),
    Sketcher.Constraint("Equal", 1, 2),
    Sketcher.Constraint("Equal", 2, 3),
    Sketcher.Constraint("Symmetric", 0, 3, 2, 3, -1),
    Sketcher.Constraint("Symmetric", 1, 3, 3, 3, -1),
    Sketcher.Constraint("Horizontal", 0, 3, 1, 3),
    Sketcher.Constraint("Radius", 0, 1.5),
    Sketcher.Constraint("DistanceY", 0, 3, -1, 1, 5.0),
    Sketcher.Constraint("DistanceX", 1, 3, -1, 1, 16.0),
    Sketcher.Constraint("DistanceX", 0, 3, -1, 1, 16.759449),
])
pad4 = body.newObject("PartDesign::Pad", "Pad003")
pad4.Profile = sketch7
pad4.Length = 3

doc.recompute()
